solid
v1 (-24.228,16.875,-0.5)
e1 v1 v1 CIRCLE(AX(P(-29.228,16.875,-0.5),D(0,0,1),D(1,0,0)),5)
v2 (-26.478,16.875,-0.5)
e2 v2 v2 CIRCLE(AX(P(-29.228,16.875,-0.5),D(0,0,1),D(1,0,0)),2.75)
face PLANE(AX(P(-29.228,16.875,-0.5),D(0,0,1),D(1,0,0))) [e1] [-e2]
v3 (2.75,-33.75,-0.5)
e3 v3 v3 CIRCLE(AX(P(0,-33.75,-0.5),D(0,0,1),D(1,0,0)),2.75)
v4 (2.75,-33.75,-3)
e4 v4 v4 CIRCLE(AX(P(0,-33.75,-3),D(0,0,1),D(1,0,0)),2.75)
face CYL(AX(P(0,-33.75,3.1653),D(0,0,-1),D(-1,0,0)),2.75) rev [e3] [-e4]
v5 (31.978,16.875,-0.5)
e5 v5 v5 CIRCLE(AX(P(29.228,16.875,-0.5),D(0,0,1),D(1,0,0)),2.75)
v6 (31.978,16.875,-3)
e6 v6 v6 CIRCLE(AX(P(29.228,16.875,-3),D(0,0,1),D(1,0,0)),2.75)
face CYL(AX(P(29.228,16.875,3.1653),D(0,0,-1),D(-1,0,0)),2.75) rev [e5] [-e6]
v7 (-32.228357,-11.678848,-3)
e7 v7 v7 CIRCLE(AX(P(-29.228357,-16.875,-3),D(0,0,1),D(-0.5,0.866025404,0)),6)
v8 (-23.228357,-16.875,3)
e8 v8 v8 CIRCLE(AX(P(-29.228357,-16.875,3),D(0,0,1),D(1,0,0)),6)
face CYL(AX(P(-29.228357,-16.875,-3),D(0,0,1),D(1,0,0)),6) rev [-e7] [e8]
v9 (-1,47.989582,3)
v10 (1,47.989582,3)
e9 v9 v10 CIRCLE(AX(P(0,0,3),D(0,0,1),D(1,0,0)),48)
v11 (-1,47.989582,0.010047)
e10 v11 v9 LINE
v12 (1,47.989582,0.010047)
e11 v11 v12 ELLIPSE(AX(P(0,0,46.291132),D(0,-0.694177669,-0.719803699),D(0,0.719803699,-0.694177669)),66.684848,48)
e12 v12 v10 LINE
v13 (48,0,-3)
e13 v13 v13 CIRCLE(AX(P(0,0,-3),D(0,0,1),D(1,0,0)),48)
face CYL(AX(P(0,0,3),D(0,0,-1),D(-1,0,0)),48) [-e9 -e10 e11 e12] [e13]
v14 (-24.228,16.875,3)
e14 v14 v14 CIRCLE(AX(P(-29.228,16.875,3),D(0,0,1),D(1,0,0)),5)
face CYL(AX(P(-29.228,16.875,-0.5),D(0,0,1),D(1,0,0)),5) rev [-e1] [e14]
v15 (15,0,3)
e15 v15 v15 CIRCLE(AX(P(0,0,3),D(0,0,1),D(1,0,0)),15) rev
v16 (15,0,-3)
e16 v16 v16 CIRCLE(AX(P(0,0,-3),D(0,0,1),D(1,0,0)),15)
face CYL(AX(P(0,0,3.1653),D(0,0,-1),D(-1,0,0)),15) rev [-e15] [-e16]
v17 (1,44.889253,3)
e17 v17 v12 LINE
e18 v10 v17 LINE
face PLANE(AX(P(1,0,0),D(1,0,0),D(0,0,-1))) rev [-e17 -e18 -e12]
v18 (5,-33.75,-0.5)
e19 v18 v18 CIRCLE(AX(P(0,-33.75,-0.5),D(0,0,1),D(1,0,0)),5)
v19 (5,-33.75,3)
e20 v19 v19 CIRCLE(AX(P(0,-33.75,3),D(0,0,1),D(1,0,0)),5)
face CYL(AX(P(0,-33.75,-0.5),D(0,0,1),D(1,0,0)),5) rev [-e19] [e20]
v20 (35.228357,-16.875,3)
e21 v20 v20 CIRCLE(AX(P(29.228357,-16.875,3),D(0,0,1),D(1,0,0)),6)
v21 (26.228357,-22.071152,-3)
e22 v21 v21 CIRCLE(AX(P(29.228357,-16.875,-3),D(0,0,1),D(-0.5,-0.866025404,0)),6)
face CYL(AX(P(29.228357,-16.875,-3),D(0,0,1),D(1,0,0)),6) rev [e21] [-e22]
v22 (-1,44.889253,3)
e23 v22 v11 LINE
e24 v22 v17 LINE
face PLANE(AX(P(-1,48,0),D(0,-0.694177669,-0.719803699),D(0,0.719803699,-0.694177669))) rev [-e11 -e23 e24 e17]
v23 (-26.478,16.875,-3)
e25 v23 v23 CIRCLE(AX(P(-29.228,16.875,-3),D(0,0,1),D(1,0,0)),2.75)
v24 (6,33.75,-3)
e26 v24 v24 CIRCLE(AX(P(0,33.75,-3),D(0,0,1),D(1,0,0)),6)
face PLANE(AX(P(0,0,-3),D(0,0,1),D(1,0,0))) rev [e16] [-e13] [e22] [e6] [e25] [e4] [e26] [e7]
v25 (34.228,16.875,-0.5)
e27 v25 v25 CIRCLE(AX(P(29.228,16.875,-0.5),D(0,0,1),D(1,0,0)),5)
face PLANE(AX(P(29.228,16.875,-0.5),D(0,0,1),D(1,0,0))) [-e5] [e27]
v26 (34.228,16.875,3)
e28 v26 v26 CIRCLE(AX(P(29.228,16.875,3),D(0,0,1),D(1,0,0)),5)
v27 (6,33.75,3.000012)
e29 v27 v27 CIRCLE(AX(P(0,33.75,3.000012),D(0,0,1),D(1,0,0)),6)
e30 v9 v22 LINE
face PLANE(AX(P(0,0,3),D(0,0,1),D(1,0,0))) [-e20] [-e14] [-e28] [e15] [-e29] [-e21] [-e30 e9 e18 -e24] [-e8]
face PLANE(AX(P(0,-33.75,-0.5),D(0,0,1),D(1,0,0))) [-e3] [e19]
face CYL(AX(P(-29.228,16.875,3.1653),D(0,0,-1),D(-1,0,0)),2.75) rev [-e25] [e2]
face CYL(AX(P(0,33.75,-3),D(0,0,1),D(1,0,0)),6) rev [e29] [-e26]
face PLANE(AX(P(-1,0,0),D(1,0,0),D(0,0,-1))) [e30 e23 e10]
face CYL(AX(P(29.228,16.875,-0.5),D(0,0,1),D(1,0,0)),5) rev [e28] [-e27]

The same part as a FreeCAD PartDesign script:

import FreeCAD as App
import Part
import Sketcher
from FreeCAD import Vector
Q = App.Units.Quantity


def add_polygon(sketch, points):
    """Adds a closed chain of lines whose ends are joined by coincident constraints."""
    first, n = sketch.GeometryCount, len(points)
    for a, b in zip(points, points[1:] + points[:1]):
        sketch.addGeometry(Part.LineSegment(App.Vector(*a, 0), App.Vector(*b, 0)), False)
    for i in range(n):
        sketch.addConstraint(Sketcher.Constraint("Coincident", first + i, 2, first + (i + 1) % n, 1))

doc = App.newDocument("Part")
body = doc.addObject("PartDesign::Body", "Body")

sketch1 = body.newObject("Sketcher::SketchObject", "Sketch")
sketch1.AttachmentSupport = (doc.getObject("XY_Plane"), [""])
sketch1.MapMode = "FlatFace"
sketch1.addGeometry(Part.Circle(Vector(0, 0, 0), Vector(0, 0, 1), 48), False)
sketch1.addGeometry(Part.Circle(Vector(0, 0, 0), Vector(0, 0, 1), 8), False)
sketch1.addConstraint(Sketcher.Constraint("Coincident", 0, 3, -1, 1))
sketch1.addConstraint(Sketcher.Constraint("Coincident", 1, 3, -1, 1))
sketch1.addConstraint(Sketcher.Constraint("Diameter", 0, Q("96 mm")))
sketch1.addConstraint(Sketcher.Constraint("Diameter", 1, Q("16 mm")))
pad1 = body.newObject("PartDesign::Pad", "Pad")
pad1.Profile = sketch1
pad1.Length = 6
pad1.Midplane = True

sketch2 = body.newObject("Sketcher::SketchObject", "Sketch001")
sketch2.AttachmentSupport = (doc.getObject("XY_Plane"), [""])
sketch2.MapMode = "FlatFace"
sketch2.AttachmentOffset = App.Placement(Vector(0, 0, 3), App.Rotation())
sketch2.addGeometry(Part.Circle(Vector(0, 34, 0), Vector(0, 0, 1), 6), False)
sketch2.addConstraint(Sketcher.Constraint("PointOnObject", 0, 3, -2))
sketch2.addConstraint(Sketcher.Constraint("Diameter", 0, Q("12 mm")))
sketch2.addConstraint(Sketcher.Constraint("DistanceY", -1, 1, 0, 3, Q("33.75 mm")))
pocket1 = body.newObject("PartDesign::Pocket", "Pocket")
pocket1.Profile = sketch2
pocket1.Length = 138.2938
pocket1.Midplane = True
doc.recompute()

polarpattern = body.newObject("PartDesign::PolarPattern", "PolarPattern")
polarpattern.Originals = [pocket1]
polarpattern.Axis = (doc.getObject("Z_Axis"), [""])
polarpattern.Angle = 360
polarpattern.Occurrences = 3
body.Tip = polarpattern

sketch3 = body.newObject("Sketcher::SketchObject", "Sketch002")
sketch3.AttachmentSupport = (doc.getObject("YZ_Plane"), [""])
sketch3.MapMode = "FlatFace"
add_polygon(sketch3, [(44.9, 3), (48, 0), (48, 3)])
sketch3.addConstraint(Sketcher.Constraint("Vertical", 1))
sketch3.addConstraint(Sketcher.Constraint("Horizontal", 2))
sketch3.addConstraint(Sketcher.Constraint("PointOnObject", 0, 2, -1))
sketch3.addConstraint(Sketcher.Constraint("DistanceY", 1, 1, 1, 2, Q("3 mm")))
sketch3.addConstraint(Sketcher.Constraint("DistanceX", -1, 1, 0, 2, Q("48 mm")))
sketch3.addConstraint(Sketcher.Constraint("Distance", 0, Q("4.32166 mm")))
pocket2 = body.newObject("PartDesign::Pocket", "Pocket001")
pocket2.Profile = sketch3
pocket2.Length = 2
pocket2.Midplane = True

sketch4 = body.newObject("Sketcher::SketchObject", "Sketch003")
sketch4.AttachmentSupport = (doc.getObject("XY_Plane"), [""])
sketch4.MapMode = "FlatFace"
sketch4.addGeometry(Part.Circle(Vector(0, 0, 0), Vector(0, 0, 1), 15), False)
sketch4.addGeometry(Part.Circle(Vector(0, -33.8, 0), Vector(0, 0, 1), 2.8), False)
sketch4.addConstraint(Sketcher.Constraint("Coincident", 0, 3, -1, 1))
sketch4.addConstraint(Sketcher.Constraint("PointOnObject", 1, 3, -2))
sketch4.addConstraint(Sketcher.Constraint("Diameter", 0, Q("30 mm")))
sketch4.addConstraint(Sketcher.Constraint("Diameter", 1, Q("5.5 mm")))
sketch4.addConstraint(Sketcher.Constraint("DistanceY", 1, 3, -1, 1, Q("33.75 mm")))
pocket3 = body.newObject("PartDesign::Pocket", "Pocket002")
pocket3.Profile = sketch4
pocket3.Type = "ThroughAll"
pocket3.Reversed = True

sketch5 = body.newObject("Sketcher::SketchObject", "Sketch004")
sketch5.AttachmentSupport = (doc.getObject("XY_Plane"), [""])
sketch5.MapMode = "FlatFace"
sketch5.addGeometry(Part.Circle(Vector(0, 0, 0), Vector(0, 0, 1), 15), False)
sketch5.addGeometry(Part.Circle(Vector(0, -33.8, 0), Vector(0, 0, 1), 2.8), False)
sketch5.addConstraint(Sketcher.Constraint("Coincident", 0, 3, -1, 1))
sketch5.addConstraint(Sketcher.Constraint("PointOnObject", 1, 3, -2))
sketch5.addConstraint(Sketcher.Constraint("Diameter", 0, Q("30 mm")))
sketch5.addConstraint(Sketcher.Constraint("Diameter", 1, Q("5.5 mm")))
sketch5.addConstraint(Sketcher.Constraint("DistanceY", 1, 3, -1, 1, Q("33.75 mm")))
pocket4 = body.newObject("PartDesign::Pocket", "Pocket003")
pocket4.Profile = sketch5
pocket4.Type = "ThroughAll"

sketch6 = body.newObject("Sketcher::SketchObject", "Sketch005")
sketch6.AttachmentSupport = (doc.getObject("XY_Plane"), [""])
sketch6.MapMode = "FlatFace"
sketch6.addGeometry(Part.Circle(Vector(29.2, 16.9, 0), Vector(0, 0, 1), 2.8), False)
sketch6.addGeometry(Part.Circle(Vector(-29.2, 16.9, 0), Vector(0, 0, 1), 2.8), False)
sketch6.addConstraint(Sketcher.Constraint("Equal", 0, 1))
sketch6.addConstraint(Sketcher.Constraint("Symmetric", 0, 3, 1, 3, -2))
sketch6.addConstraint(Sketcher.Constraint("Diameter", 0, Q("5.5 mm")))
sketch6.addConstraint(Sketcher.Constraint("DistanceX", -1, 1, 0, 3, Q("29.228 mm")))
sketch6.addConstraint(Sketcher.Constraint("DistanceY", -1, 1, 0, 3, Q("16.875 mm")))
pocket5 = body.newObject("PartDesign::Pocket", "Pocket004")
pocket5.Profile = sketch6
pocket5.Type = "ThroughAll"
pocket5.Reversed = True

sketch7 = body.newObject("Sketcher::SketchObject", "Sketch006")
sketch7.AttachmentSupport = (doc.getObject("XY_Plane"), [""])
sketch7.MapMode = "FlatFace"
sketch7.addGeometry(Part.Circle(Vector(29.2, 16.9, 0), Vector(0, 0, 1), 2.8), False)
sketch7.addGeometry(Part.Circle(Vector(-29.2, 16.9, 0), Vector(0, 0, 1), 2.8), False)
sketch7.addConstraint(Sketcher.Constraint("Equal", 0, 1))
sketch7.addConstraint(Sketcher.Constraint("Symmetric", 0, 3, 1, 3, -2))
sketch7.addConstraint(Sketcher.Constraint("Diameter", 0, Q("5.5 mm")))
sketch7.addConstraint(Sketcher.Constraint("DistanceX", -1, 1, 0, 3, Q("29.228 mm")))
sketch7.addConstraint(Sketcher.Constraint("DistanceY", -1, 1, 0, 3, Q("16.875 mm")))
pocket6 = body.newObject("PartDesign::Pocket", "Pocket005")
pocket6.Profile = sketch7
pocket6.Type = "ThroughAll"

sketch8 = body.newObject("Sketcher::SketchObject", "Sketch007")
sketch8.AttachmentSupport = (doc.getObject("XY_Plane"), [""])
sketch8.MapMode = "FlatFace"
sketch8.AttachmentOffset = App.Placement(Vector(0, 0, 3), App.Rotation())
sketch8.addGeometry(Part.Circle(Vector(0, -34, 0), Vector(0, 0, 1), 5), False)
sketch8.addGeometry(Part.Circle(Vector(29, 17, 0), Vector(0, 0, 1), 5), False)
sketch8.addGeometry(Part.Circle(Vector(-29, 17, 0), Vector(0, 0, 1), 5), False)
sketch8.addConstraint(Sketcher.Constraint("Equal", 0, 1))
sketch8.addConstraint(Sketcher.Constraint("Equal", 1, 2))
sketch8.addConstraint(Sketcher.Constraint("Symmetric", 1, 3, 2, 3, -2))
sketch8.addConstraint(Sketcher.Constraint("PointOnObject", 0, 3, -2))
sketch8.addConstraint(Sketcher.Constraint("Diameter", 0, Q("10 mm")))
sketch8.addConstraint(Sketcher.Constraint("DistanceY", 0, 3, -1, 1, Q("33.75 mm")))
sketch8.addConstraint(Sketcher.Constraint("DistanceX", -1, 1, 1, 3, Q("29.228 mm")))
sketch8.addConstraint(Sketcher.Constraint("DistanceY", -1, 1, 1, 3, Q("16.875 mm")))
pocket7 = body.newObject("PartDesign::Pocket", "Pocket006")
pocket7.Profile = sketch8
pocket7.Length = 3.5

doc.recompute()
